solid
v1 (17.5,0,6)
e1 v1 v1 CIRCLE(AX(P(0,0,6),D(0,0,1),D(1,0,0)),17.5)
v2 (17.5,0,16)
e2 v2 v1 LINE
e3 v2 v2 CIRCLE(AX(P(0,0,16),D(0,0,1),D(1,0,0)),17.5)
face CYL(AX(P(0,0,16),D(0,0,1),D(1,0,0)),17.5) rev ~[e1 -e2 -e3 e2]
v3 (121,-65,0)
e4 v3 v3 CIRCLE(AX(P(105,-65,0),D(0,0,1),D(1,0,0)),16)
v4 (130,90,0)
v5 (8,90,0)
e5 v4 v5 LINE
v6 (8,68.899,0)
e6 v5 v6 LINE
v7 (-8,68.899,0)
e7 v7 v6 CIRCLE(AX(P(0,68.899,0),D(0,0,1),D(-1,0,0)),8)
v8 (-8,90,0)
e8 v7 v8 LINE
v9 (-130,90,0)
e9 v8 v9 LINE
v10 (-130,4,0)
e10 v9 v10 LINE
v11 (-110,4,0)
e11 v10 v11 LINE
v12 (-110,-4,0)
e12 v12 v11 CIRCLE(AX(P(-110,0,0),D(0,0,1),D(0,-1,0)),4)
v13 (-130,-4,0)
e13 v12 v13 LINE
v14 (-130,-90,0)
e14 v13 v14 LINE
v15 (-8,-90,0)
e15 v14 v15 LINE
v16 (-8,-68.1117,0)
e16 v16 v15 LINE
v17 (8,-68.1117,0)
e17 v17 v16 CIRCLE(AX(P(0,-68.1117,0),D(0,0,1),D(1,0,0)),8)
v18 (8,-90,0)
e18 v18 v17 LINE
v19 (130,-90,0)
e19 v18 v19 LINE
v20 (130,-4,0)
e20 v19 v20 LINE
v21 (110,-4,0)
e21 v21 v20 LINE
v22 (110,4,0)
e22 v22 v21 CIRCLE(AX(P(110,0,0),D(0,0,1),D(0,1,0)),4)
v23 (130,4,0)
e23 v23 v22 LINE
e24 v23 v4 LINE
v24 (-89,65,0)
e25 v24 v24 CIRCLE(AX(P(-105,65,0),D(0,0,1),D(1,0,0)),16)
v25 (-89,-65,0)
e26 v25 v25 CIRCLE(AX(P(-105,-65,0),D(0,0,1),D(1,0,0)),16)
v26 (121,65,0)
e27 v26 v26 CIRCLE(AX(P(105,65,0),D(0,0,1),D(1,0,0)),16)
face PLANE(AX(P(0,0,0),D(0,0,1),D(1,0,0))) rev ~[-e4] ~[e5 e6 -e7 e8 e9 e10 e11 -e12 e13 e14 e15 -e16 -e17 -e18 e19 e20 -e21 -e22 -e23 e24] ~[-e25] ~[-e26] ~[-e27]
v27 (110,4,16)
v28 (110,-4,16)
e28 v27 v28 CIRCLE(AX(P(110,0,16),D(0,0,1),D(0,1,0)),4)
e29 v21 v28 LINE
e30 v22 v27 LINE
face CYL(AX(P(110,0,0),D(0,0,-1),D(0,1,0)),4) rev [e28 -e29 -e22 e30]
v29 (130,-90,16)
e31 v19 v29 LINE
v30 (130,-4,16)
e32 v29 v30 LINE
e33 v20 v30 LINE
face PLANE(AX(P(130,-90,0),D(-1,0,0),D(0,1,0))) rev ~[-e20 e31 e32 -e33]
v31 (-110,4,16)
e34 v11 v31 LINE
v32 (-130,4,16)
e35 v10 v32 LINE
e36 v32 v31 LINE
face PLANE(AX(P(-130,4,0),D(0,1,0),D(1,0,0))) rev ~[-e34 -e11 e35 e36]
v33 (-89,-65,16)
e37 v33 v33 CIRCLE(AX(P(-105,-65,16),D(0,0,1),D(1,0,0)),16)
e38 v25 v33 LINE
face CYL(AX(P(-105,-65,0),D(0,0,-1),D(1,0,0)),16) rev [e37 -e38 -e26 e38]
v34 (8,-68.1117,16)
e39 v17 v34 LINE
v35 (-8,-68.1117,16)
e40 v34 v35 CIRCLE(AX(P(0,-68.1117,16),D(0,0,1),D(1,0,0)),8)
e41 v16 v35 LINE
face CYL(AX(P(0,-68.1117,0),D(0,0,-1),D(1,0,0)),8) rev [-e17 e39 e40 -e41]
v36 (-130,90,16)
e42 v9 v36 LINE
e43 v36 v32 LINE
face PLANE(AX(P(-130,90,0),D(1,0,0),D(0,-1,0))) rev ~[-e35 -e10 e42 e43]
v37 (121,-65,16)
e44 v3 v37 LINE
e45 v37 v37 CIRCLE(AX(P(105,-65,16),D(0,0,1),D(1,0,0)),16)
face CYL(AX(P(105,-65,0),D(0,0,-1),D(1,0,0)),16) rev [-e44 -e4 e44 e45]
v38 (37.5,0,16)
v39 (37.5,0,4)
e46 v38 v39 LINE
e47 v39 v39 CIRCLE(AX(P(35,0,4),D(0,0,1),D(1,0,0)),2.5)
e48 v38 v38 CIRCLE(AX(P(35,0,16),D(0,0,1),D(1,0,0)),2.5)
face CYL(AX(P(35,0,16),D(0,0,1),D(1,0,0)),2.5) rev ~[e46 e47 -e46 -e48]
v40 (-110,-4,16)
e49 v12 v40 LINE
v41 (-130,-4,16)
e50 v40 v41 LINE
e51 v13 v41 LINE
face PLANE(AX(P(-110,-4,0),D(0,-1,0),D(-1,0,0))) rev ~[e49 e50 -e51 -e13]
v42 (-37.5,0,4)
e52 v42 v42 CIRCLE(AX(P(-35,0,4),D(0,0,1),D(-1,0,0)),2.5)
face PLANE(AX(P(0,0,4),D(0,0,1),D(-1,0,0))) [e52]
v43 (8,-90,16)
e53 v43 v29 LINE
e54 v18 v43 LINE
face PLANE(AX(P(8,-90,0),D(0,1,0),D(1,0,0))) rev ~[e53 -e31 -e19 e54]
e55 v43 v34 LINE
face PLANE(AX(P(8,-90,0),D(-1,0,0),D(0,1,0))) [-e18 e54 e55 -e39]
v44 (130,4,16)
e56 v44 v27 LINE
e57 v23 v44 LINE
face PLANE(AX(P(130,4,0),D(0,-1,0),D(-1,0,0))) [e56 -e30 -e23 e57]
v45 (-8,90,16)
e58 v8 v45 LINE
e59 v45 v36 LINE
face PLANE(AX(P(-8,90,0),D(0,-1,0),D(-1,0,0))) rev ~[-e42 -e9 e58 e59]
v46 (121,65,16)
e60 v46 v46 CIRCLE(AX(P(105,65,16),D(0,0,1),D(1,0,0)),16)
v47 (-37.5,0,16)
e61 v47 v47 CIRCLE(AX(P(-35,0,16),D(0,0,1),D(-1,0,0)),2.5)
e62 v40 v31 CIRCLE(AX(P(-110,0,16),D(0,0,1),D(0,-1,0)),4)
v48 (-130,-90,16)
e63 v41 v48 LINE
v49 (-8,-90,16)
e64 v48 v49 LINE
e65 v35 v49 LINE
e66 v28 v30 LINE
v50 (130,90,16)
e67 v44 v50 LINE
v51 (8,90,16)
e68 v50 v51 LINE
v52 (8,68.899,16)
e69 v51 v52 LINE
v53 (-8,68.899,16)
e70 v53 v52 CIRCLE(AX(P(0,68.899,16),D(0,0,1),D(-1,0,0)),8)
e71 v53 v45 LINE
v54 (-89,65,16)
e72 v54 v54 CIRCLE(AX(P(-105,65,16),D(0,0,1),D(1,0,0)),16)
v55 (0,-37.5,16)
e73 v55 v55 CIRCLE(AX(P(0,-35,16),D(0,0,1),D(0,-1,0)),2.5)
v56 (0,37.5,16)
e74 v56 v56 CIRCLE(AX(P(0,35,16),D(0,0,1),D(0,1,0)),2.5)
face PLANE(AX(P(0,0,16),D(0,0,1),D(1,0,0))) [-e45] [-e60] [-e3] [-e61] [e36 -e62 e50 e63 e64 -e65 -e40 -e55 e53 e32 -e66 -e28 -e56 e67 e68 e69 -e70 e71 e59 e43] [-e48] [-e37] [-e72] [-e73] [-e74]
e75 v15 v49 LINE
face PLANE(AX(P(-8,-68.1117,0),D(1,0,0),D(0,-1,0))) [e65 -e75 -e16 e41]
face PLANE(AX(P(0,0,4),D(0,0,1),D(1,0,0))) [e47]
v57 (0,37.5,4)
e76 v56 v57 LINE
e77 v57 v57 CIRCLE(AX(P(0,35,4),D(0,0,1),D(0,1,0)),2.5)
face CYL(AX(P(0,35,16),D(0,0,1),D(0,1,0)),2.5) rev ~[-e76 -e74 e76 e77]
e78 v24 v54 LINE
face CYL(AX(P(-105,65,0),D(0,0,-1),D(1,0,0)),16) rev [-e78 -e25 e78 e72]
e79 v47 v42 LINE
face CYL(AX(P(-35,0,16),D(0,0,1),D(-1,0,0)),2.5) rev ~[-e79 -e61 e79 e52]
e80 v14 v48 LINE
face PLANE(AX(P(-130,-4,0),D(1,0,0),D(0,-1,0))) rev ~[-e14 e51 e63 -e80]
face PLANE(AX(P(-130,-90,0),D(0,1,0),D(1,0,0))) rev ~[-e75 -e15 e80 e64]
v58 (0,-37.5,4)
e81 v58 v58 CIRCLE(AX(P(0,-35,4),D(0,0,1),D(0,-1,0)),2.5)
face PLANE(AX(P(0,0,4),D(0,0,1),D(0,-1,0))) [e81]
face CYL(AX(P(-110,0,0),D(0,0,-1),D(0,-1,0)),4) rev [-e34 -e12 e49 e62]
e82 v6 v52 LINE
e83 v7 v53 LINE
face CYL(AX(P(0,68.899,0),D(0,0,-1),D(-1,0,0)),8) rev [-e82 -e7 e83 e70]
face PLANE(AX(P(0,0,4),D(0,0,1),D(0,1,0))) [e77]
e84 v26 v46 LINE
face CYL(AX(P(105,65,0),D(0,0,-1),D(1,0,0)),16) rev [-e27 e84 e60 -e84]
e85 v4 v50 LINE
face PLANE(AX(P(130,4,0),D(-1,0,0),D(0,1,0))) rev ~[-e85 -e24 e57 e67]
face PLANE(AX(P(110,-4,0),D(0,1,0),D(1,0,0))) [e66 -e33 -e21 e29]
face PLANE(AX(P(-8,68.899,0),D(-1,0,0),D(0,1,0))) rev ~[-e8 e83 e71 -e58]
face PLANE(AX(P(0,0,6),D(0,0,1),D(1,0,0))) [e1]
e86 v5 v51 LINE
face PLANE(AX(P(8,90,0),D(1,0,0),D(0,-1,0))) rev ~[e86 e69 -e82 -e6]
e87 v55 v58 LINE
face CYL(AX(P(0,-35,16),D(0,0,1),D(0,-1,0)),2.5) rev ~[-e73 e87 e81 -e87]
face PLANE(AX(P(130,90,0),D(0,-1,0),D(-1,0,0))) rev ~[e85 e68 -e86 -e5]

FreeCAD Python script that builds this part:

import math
import FreeCAD as App
import Part
import Sketcher

V = App.Vector
Q = App.Units.Quantity

doc = App.newDocument("Part")
params = doc.addObject("Spreadsheet::Sheet", "Params")
for row, (alias, value) in enumerate([
    ("sketch1_diameter", "32 mm"),
    ("sketch1_radius", "8 mm"),
    ("sketch1_radius2", "4 mm"),
    ("sketch1_width", "20 mm"),
    ("sketch1_width2", "122 mm"),
    ("pad1_length", "16 mm"),
    ("sketch2_diameter", "5 mm"),
    ("pocket1_length", "12 mm"),
    ("sketch3_diameter", "35 mm"),
    ("pocket2_length", "10 mm"),
], start=1):
    params.set(f"A{row}", alias)
    params.set(f"B{row}", "=" + value)
    params.setAlias(f"B{row}", alias)

body = doc.addObject("PartDesign::Body", "Body")

# Sketch on XY plane
sketch1 = body.newObject("Sketcher::SketchObject", "Sketch")
sketch1.AttachmentSupport = (doc.getObject("XY_Plane"), [""])
sketch1.MapMode = "FlatFace"
sketch1.addGeometry(Part.LineSegment(V(-8, -90, 0), V(-8, -68.1117, 0)), False)
sketch1.addGeometry(Part.ArcOfCircle(Part.Circle(V(0, -68.1117, 0), V(0, 0, 1), 8), math.radians(0), math.radians(180)), False)
sketch1.addGeometry(Part.LineSegment(V(8, -68.1117, 0), V(8, -90, 0)), False)
sketch1.addGeometry(Part.LineSegment(V(8, -90, 0), V(130, -90, 0)), False)
sketch1.addGeometry(Part.LineSegment(V(130, -90, 0), V(130, -4, 0)), False)
sketch1.addGeometry(Part.LineSegment(V(130, -4, 0), V(110, -4, 0)), False)
sketch1.addGeometry(Part.ArcOfCircle(Part.Circle(V(110, 0, 0), V(0, 0, 1), 4), math.radians(90), math.radians(270)), False)
sketch1.addGeometry(Part.LineSegment(V(110, 4, 0), V(130, 4, 0)), False)
sketch1.addGeometry(Part.LineSegment(V(130, 4, 0), V(130, 90, 0)), False)
sketch1.addGeometry(Part.LineSegment(V(130, 90, 0), V(8, 90, 0)), False)
sketch1.addGeometry(Part.LineSegment(V(8, 90, 0), V(8, 68.899, 0)), False)
sketch1.addGeometry(Part.ArcOfCircle(Part.Circle(V(0, 68.899, 0), V(0, 0, 1), 8), math.radians(180), math.radians(360)), False)
sketch1.addGeometry(Part.LineSegment(V(-8, 68.899, 0), V(-8, 90, 0)), False)
sketch1.addGeometry(Part.LineSegment(V(-8, 90, 0), V(-130, 90, 0)), False)
sketch1.addGeometry(Part.LineSegment(V(-130, 90, 0), V(-130, 4, 0)), False)
sketch1.addGeometry(Part.LineSegment(V(-130, 4, 0), V(-110, 4, 0)), False)
sketch1.addGeometry(Part.ArcOfCircle(Part.Circle(V(-110, 0, 0), V(0, 0, 1), 4), math.radians(-90), math.radians(90)), False)
sketch1.addGeometry(Part.LineSegment(V(-110, -4, 0), V(-130, -4, 0)), False)
sketch1.addGeometry(Part.LineSegment(V(-130, -4, 0), V(-130, -90, 0)), False)
sketch1.addGeometry(Part.LineSegment(V(-130, -90, 0), V(-8, -90, 0)), False)
sketch1.addGeometry(Part.Circle(V(-105, -65, 0), V(0, 0, 1), 16), False)
sketch1.addGeometry(Part.Circle(V(105, -65, 0), V(0, 0, 1), 16), False)
sketch1.addGeometry(Part.Circle(V(-105, 65, 0), V(0, 0, 1), 16), False)
sketch1.addGeometry(Part.Circle(V(105, 65, 0), V(0, 0, 1), 16), False)
sketch1.addConstraint(Sketcher.Constraint("Tangent", 0, 2, 1, 2))
sketch1.addConstraint(Sketcher.Constraint("Tangent", 1, 1, 2, 1))
sketch1.addConstraint(Sketcher.Constraint("Coincident", 2, 2, 3, 1))
sketch1.addConstraint(Sketcher.Constraint("Coincident", 3, 2, 4, 1))
sketch1.addConstraint(Sketcher.Constraint("Coincident", 4, 2, 5, 1))
sketch1.addConstraint(Sketcher.Constraint("Tangent", 5, 2, 6, 2))
sketch1.addConstraint(Sketcher.Constraint("Tangent", 6, 1, 7, 1))
sketch1.addConstraint(Sketcher.Constraint("Coincident", 7, 2, 8, 1))
sketch1.addConstraint(Sketcher.Constraint("Coincident", 8, 2, 9, 1))
sketch1.addConstraint(Sketcher.Constraint("Coincident", 9, 2, 10, 1))
sketch1.addConstraint(Sketcher.Constraint("Tangent", 10, 2, 11, 2))
sketch1.addConstraint(Sketcher.Constraint("Tangent", 11, 1, 12, 1))
sketch1.addConstraint(Sketcher.Constraint("Coincident", 12, 2, 13, 1))
sketch1.addConstraint(Sketcher.Constraint("Coincident", 13, 2, 14, 1))
sketch1.addConstraint(Sketcher.Constraint("Coincident", 14, 2, 15, 1))
sketch1.addConstraint(Sketcher.Constraint("Tangent", 15, 2, 16, 2))
sketch1.addConstraint(Sketcher.Constraint("Tangent", 16, 1, 17, 1))
sketch1.addConstraint(Sketcher.Constraint("Coincident", 17, 2, 18, 1))
sketch1.addConstraint(Sketcher.Constraint("Coincident", 18, 2, 19, 1))
sketch1.addConstraint(Sketcher.Constraint("Coincident", 19, 2, 0, 1))
sketch1.addConstraint(Sketcher.Constraint("Vertical", 0))
sketch1.addConstraint(Sketcher.Constraint("Vertical", 2))
sketch1.addConstraint(Sketcher.Constraint("Horizontal", 3))
sketch1.addConstraint(Sketcher.Constraint("Vertical", 4))
sketch1.addConstraint(Sketcher.Constraint("Horizontal", 5))
sketch1.addConstraint(Sketcher.Constraint("Horizontal", 7))
sketch1.addConstraint(Sketcher.Constraint("Vertical", 8))
sketch1.addConstraint(Sketcher.Constraint("Horizontal", 9))
sketch1.addConstraint(Sketcher.Constraint("Vertical", 10))
sketch1.addConstraint(Sketcher.Constraint("Vertical", 12))
sketch1.addConstraint(Sketcher.Constraint("Horizontal", 13))
sketch1.addConstraint(Sketcher.Constraint("Vertical", 14))
sketch1.addConstraint(Sketcher.Constraint("Horizontal", 15))
sketch1.addConstraint(Sketcher.Constraint("Horizontal", 17))
sketch1.addConstraint(Sketcher.Constraint("Vertical", 18))
sketch1.addConstraint(Sketcher.Constraint("Horizontal", 19))
sketch1.addConstraint(Sketcher.Constraint("Equal", 1, 11))
sketch1.addConstraint(Sketcher.Constraint("Equal", 6, 16))
sketch1.addConstraint(Sketcher.Constraint("Equal", 20, 21))
sketch1.addConstraint(Sketcher.Constraint("Equal", 21, 22))
sketch1.addConstraint(Sketcher.Constraint("Equal", 22, 23))
sketch1.addConstraint(Sketcher.Constraint("Symmetric", 6, 3, 16, 3, -1, 1))
sketch1.addConstraint(Sketcher.Constraint("Symmetric", 21, 3, 22, 3, -1, 1))
sketch1.addConstraint(Sketcher.Constraint("Symmetric", 20, 3, 23, 3, -1, 1))
sketch1.addConstraint(Sketcher.Constraint("Symmetric", 2, 2, 12, 2, -1, 1))
sketch1.addConstraint(Sketcher.Constraint("Symmetric", 8, 2, 18, 2, -1, 1))
sketch1.addConstraint(Sketcher.Constraint("Symmetric", 20, 3, 21, 3, -2))
sketch1.addConstraint(Sketcher.Constraint("Symmetric", 9, 2, 12, 2, -2))
sketch1.addConstraint(Sketcher.Constraint("Symmetric", 7, 2, 14, 2, -2))
sketch1.addConstraint(Sketcher.Constraint("Vertical", 4, 2, 7, 2))
sketch1.addConstraint(Sketcher.Constraint("Diameter", 20, Q("32 mm")))
sketch1.addConstraint(Sketcher.Constraint("Radius", 1, Q("8 mm")))
sketch1.addConstraint(Sketcher.Constraint("Radius", 6, Q("4 mm")))
sketch1.addConstraint(Sketcher.Constraint("DistanceX", 5, 2, 5, 1, Q("20 mm")))
sketch1.addConstraint(Sketcher.Constraint("DistanceX", 20, 3, -1, 1, Q("105 mm")))
sketch1.addConstraint(Sketcher.Constraint("DistanceY", 20, 3, -1, 1, Q("65 mm")))
sketch1.addConstraint(Sketcher.Constraint("DistanceX", 3, 1, 3, 2, Q("122 mm")))
sketch1.addConstraint(Sketcher.Constraint("DistanceY", 4, 1, 4, 2, Q("86 mm")))
sketch1.addConstraint(Sketcher.Constraint("DistanceY", 10, 2, 10, 1, Q("21.101 mm")))
sketch1.addConstraint(Sketcher.Constraint("DistanceY", 0, 1, 0, 2, Q("21.8883 mm")))
sketch1.setExpression("Constraints[50]", "Params.sketch1_diameter")
sketch1.setExpression("Constraints[51]", "Params.sketch1_radius")
sketch1.setExpression("Constraints[52]", "Params.sketch1_radius2")
sketch1.setExpression("Constraints[53]", "Params.sketch1_width")
sketch1.setExpression("Constraints[56]", "Params.sketch1_width2")
pad1 = body.newObject("PartDesign::Pad", "Pad")
pad1.Profile = sketch1
pad1.setExpression("Length", "Params.pad1_length")

# Sketch on XY plane
sketch2 = body.newObject("Sketcher::SketchObject", "Sketch001")
sketch2.AttachmentSupport = (doc.getObject("XY_Plane"), [""])
sketch2.MapMode = "FlatFace"
sketch2.AttachmentOffset = App.Placement(V(0, 0, 16), App.Rotation())
sketch2.addGeometry(Part.Circle(V(35, 0, 0), V(0, 0, 1), 2.5), False)
sketch2.addConstraint(Sketcher.Constraint("PointOnObject", 0, 3, -1))
sketch2.addConstraint(Sketcher.Constraint("Diameter", 0, Q("5 mm")))
sketch2.addConstraint(Sketcher.Constraint("DistanceX", -1, 1, 0, 3, Q("35 mm")))
sketch2.setExpression("Constraints[1]", "Params.sketch2_diameter")
pocket1 = body.newObject("PartDesign::Pocket", "Pocket")
pocket1.Profile = sketch2
pocket1.setExpression("Length", "Params.pocket1_length")

# Sketch on XY plane
sketch3 = body.newObject("Sketcher::SketchObject", "Sketch002")
sketch3.AttachmentSupport = (doc.getObject("XY_Plane"), [""])
sketch3.MapMode = "FlatFace"
sketch3.AttachmentOffset = App.Placement(V(0, 0, 16), App.Rotation())
sketch3.addGeometry(Part.Circle(V(0, 0, 0), V(0, 0, 1), 17.5), False)
sketch3.addConstraint(Sketcher.Constraint("Coincident", 0, 3, -1, 1))
sketch3.addConstraint(Sketcher.Constraint("Diameter", 0, Q("35 mm")))
sketch3.setExpression("Constraints[1]", "Params.sketch3_diameter")
pocket2 = body.newObject("PartDesign::Pocket", "Pocket001")
pocket2.Profile = sketch3
pocket2.setExpression("Length", "Params.pocket2_length")
doc.recompute()

polarpattern = body.newObject("PartDesign::PolarPattern", "PolarPattern")
polarpattern.Originals = [pocket1]
polarpattern.Axis = (doc.getObject("Z_Axis"), [""])
polarpattern.Angle = 360
polarpattern.Occurrences = 4
body.Tip = polarpattern

doc.recompute()
